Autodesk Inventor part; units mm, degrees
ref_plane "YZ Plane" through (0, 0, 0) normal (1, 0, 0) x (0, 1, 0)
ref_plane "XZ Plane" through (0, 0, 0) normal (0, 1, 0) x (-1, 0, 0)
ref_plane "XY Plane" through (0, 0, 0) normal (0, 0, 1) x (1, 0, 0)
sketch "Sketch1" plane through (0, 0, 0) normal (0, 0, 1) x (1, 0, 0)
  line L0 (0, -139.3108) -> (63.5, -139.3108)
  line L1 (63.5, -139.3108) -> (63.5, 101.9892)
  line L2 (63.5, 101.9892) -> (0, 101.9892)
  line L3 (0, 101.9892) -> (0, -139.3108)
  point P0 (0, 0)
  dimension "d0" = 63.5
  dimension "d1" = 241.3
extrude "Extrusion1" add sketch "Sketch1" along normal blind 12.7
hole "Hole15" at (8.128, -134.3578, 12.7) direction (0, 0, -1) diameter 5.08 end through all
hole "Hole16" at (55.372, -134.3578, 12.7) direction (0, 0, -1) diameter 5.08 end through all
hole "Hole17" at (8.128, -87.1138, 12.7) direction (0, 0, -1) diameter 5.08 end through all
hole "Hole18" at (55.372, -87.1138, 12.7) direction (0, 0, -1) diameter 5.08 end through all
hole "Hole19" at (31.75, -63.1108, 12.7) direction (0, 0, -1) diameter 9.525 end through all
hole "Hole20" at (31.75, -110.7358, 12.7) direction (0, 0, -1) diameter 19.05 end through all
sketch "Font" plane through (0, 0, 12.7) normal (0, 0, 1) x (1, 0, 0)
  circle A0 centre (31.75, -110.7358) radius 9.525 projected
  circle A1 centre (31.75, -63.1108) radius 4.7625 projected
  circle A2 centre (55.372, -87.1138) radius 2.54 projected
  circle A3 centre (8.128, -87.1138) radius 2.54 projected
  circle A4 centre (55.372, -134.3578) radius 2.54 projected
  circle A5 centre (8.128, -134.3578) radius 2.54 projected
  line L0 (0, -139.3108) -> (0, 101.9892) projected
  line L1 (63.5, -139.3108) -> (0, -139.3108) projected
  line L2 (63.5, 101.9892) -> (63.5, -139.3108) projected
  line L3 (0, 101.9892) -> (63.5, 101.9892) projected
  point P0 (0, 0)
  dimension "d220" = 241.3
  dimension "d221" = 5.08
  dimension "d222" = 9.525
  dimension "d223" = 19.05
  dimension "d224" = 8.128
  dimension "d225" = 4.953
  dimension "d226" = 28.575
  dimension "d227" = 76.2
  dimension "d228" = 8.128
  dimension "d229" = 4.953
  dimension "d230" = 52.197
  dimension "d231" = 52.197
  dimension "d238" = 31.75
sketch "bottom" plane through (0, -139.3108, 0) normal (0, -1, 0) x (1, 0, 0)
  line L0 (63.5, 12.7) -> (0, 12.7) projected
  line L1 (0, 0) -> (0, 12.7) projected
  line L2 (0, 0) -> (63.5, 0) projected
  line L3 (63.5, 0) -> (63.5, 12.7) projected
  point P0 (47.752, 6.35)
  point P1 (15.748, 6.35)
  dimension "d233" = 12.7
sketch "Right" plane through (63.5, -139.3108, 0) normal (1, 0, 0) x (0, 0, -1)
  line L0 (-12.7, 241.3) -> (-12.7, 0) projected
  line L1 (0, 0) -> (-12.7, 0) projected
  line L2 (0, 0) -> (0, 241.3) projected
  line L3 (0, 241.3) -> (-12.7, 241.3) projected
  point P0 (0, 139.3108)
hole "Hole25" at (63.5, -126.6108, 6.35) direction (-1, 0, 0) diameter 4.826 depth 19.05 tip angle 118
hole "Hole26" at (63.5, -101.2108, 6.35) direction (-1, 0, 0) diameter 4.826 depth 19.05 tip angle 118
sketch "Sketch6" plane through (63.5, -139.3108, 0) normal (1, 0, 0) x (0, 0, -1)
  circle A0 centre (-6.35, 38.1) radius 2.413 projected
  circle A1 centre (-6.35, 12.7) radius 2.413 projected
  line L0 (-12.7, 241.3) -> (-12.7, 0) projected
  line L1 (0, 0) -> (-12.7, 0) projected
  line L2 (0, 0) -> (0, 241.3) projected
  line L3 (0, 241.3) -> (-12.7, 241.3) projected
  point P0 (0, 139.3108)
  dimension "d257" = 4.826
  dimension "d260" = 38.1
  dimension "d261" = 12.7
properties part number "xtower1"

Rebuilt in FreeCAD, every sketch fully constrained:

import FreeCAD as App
import Part
import Sketcher
from FreeCAD import Vector
Q = App.Units.Quantity

doc = App.newDocument("Part")
body = doc.addObject("PartDesign::Body", "Body")

# Sketch on XY plane
sketch1 = doc.addObject("Sketcher::SketchObject", "Sketch")
body.addObject(sketch1)
sketch1.AttachmentSupport = (doc.XY_Plane, [""])
sketch1.MapMode = "FlatFace"
sketch1.addGeometry([
    Part.LineSegment(Vector(0, 101.9892, 0), Vector(0, -139.3108, 0)),
    Part.LineSegment(Vector(0, -139.3108, 0), Vector(63.5, -139.3108, 0)),
    Part.LineSegment(Vector(63.5, -139.3108, 0), Vector(63.5, 101.9892, 0)),
    Part.LineSegment(Vector(63.5, 101.9892, 0), Vector(0, 101.9892, 0)),
], False)
sketch1.addConstraint([
    Sketcher.Constraint("Coincident", 0, 2, 1, 1),
    Sketcher.Constraint("Coincident", 1, 2, 2, 1),
    Sketcher.Constraint("Coincident", 2, 2, 3, 1),
    Sketcher.Constraint("Coincident", 3, 2, 0, 1),
    Sketcher.Constraint("Vertical", 0),
    Sketcher.Constraint("Horizontal", 1),
    Sketcher.Constraint("Vertical", 2),
    Sketcher.Constraint("Horizontal", 3),
    Sketcher.Constraint("PointOnObject", 0, 2, -2),
    Sketcher.Constraint("DistanceX", 1, 1, 1, 2, Q("2.5 in")),
    Sketcher.Constraint("DistanceY", 0, 2, 0, 1, Q("9.5 in")),
    Sketcher.Constraint("DistanceY", 0, 2, -1, 1, Q("139.3108 mm")),
])
pad1 = doc.addObject("PartDesign::Pad", "Pad")
body.addObject(pad1)
pad1.Profile = sketch1
pad1.Length = Q("0.5 in")

# Sketch on XY plane
sketch2 = doc.addObject("Sketcher::SketchObject", "Sketch001")
body.addObject(sketch2)
sketch2.AttachmentSupport = (doc.XY_Plane, [""])
sketch2.MapMode = "FlatFace"
sketch2.AttachmentOffset = App.Placement(Vector(0, 0, 0.5 * 25.4), App.Rotation())
sketch2.addGeometry(Part.Circle(Vector(8.128, -134.3578, 0), Vector(0, 0, 1), 2.54), False)
sketch2.addConstraint([
    Sketcher.Constraint("Diameter", 0, Q("0.2 in")),
    Sketcher.Constraint("DistanceX", -1, 1, 0, 3, Q("0.32 in")),
    Sketcher.Constraint("DistanceY", 0, 3, -1, 1, Q("134.3578 mm")),
])
doc.recompute()
hole = doc.addObject("PartDesign::Hole", "Hole")
body.addObject(hole)
hole.Profile = sketch2
hole.ThreadType = "None"
hole.Diameter = Q("0.2 in")
hole.DepthType = "ThroughAll"

# Sketch on XY plane
sketch3 = doc.addObject("Sketcher::SketchObject", "Sketch002")
body.addObject(sketch3)
sketch3.AttachmentSupport = (doc.XY_Plane, [""])
sketch3.MapMode = "FlatFace"
sketch3.AttachmentOffset = App.Placement(Vector(0, 0, 0.5 * 25.4), App.Rotation())
sketch3.addGeometry(Part.Circle(Vector(55.372, -134.3578, 0), Vector(0, 0, 1), 2.54), False)
sketch3.addConstraint([
    Sketcher.Constraint("Diameter", 0, Q("0.2 in")),
    Sketcher.Constraint("DistanceX", -1, 1, 0, 3, Q("2.18 in")),
    Sketcher.Constraint("DistanceY", 0, 3, -1, 1, Q("134.3578 mm")),
])
doc.recompute()
hole2 = doc.addObject("PartDesign::Hole", "Hole001")
body.addObject(hole2)
hole2.Profile = sketch3
hole2.ThreadType = "None"
hole2.Diameter = Q("0.2 in")
hole2.DepthType = "ThroughAll"

# Sketch on XY plane
sketch4 = doc.addObject("Sketcher::SketchObject", "Sketch003")
body.addObject(sketch4)
sketch4.AttachmentSupport = (doc.XY_Plane, [""])
sketch4.MapMode = "FlatFace"
sketch4.AttachmentOffset = App.Placement(Vector(0, 0, 0.5 * 25.4), App.Rotation())
sketch4.addGeometry(Part.Circle(Vector(8.128, -87.1138, 0), Vector(0, 0, 1), 2.54), False)
sketch4.addConstraint([
    Sketcher.Constraint("Diameter", 0, Q("0.2 in")),
    Sketcher.Constraint("DistanceX", -1, 1, 0, 3, Q("0.32 in")),
    Sketcher.Constraint("DistanceY", 0, 3, -1, 1, Q("87.1138 mm")),
])
doc.recompute()
hole3 = doc.addObject("PartDesign::Hole", "Hole002")
body.addObject(hole3)
hole3.Profile = sketch4
hole3.ThreadType = "None"
hole3.Diameter = Q("0.2 in")
hole3.DepthType = "ThroughAll"

# Sketch on XY plane
sketch5 = doc.addObject("Sketcher::SketchObject", "Sketch004")
body.addObject(sketch5)
sketch5.AttachmentSupport = (doc.XY_Plane, [""])
sketch5.MapMode = "FlatFace"
sketch5.AttachmentOffset = App.Placement(Vector(0, 0, 0.5 * 25.4), App.Rotation())
sketch5.addGeometry(Part.Circle(Vector(55.372, -87.1138, 0), Vector(0, 0, 1), 2.54), False)
sketch5.addConstraint([
    Sketcher.Constraint("Diameter", 0, Q("0.2 in")),
    Sketcher.Constraint("DistanceX", -1, 1, 0, 3, Q("2.18 in")),
    Sketcher.Constraint("DistanceY", 0, 3, -1, 1, Q("87.1138 mm")),
])
doc.recompute()
hole4 = doc.addObject("PartDesign::Hole", "Hole003")
body.addObject(hole4)
hole4.Profile = sketch5
hole4.ThreadType = "None"
hole4.Diameter = Q("0.2 in")
hole4.DepthType = "ThroughAll"

# Sketch on XY plane
sketch6 = doc.addObject("Sketcher::SketchObject", "Sketch005")
body.addObject(sketch6)
sketch6.AttachmentSupport = (doc.XY_Plane, [""])
sketch6.MapMode = "FlatFace"
sketch6.AttachmentOffset = App.Placement(Vector(0, 0, 0.5 * 25.4), App.Rotation())
sketch6.addGeometry(Part.Circle(Vector(31.75, -63.1108, 0), Vector(0, 0, 1), 4.7625), False)
sketch6.addConstraint([
    Sketcher.Constraint("Diameter", 0, Q("0.375 in")),
    Sketcher.Constraint("DistanceX", -1, 1, 0, 3, Q("1.25 in")),
    Sketcher.Constraint("DistanceY", 0, 3, -1, 1, Q("63.1108 mm")),
])
doc.recompute()
hole5 = doc.addObject("PartDesign::Hole", "Hole004")
body.addObject(hole5)
hole5.Profile = sketch6
hole5.ThreadType = "None"
hole5.Diameter = Q("0.375 in")
hole5.DepthType = "ThroughAll"

# Sketch on XY plane
sketch7 = doc.addObject("Sketcher::SketchObject", "Sketch006")
body.addObject(sketch7)
sketch7.AttachmentSupport = (doc.XY_Plane, [""])
sketch7.MapMode = "FlatFace"
sketch7.AttachmentOffset = App.Placement(Vector(0, 0, 0.5 * 25.4), App.Rotation())
sketch7.addGeometry(Part.Circle(Vector(31.75, -110.7358, 0), Vector(0, 0, 1), 9.525), False)
sketch7.addConstraint([
    Sketcher.Constraint("Diameter", 0, Q("0.75 in")),
    Sketcher.Constraint("DistanceX", -1, 1, 0, 3, Q("1.25 in")),
    Sketcher.Constraint("DistanceY", 0, 3, -1, 1, Q("110.7358 mm")),
])
doc.recompute()
hole6 = doc.addObject("PartDesign::Hole", "Hole005")
body.addObject(hole6)
hole6.Profile = sketch7
hole6.ThreadType = "None"
hole6.Diameter = Q("0.75 in")
hole6.DepthType = "ThroughAll"

# Sketch on YZ plane
sketch8 = doc.addObject("Sketcher::SketchObject", "Sketch007")
body.addObject(sketch8)
sketch8.AttachmentSupport = (doc.YZ_Plane, [""])
sketch8.MapMode = "FlatFace"
sketch8.AttachmentOffset = App.Placement(Vector(0, 0, 2.5 * 25.4), App.Rotation())
sketch8.addGeometry(Part.Circle(Vector(-126.6108, 6.35, 0), Vector(0, 0, 1), 2.413), False)
sketch8.addConstraint([
    Sketcher.Constraint("Diameter", 0, Q("0.19 in")),
    Sketcher.Constraint("DistanceY", -1, 1, 0, 3, Q("0.25 in")),
    Sketcher.Constraint("DistanceX", 0, 3, -1, 1, Q("126.6108 mm")),
])
doc.recompute()
hole7 = doc.addObject("PartDesign::Hole", "Hole006")
body.addObject(hole7)
hole7.Profile = sketch8
hole7.ThreadType = "None"
hole7.Diameter = Q("0.19 in")
hole7.DepthType = "Dimension"
hole7.Depth = Q("0.75 in")
hole7.DrillPoint = "Angled"
hole7.DrillPointAngle = 118

# Sketch on YZ plane
sketch9 = doc.addObject("Sketcher::SketchObject", "Sketch008")
body.addObject(sketch9)
sketch9.AttachmentSupport = (doc.YZ_Plane, [""])
sketch9.MapMode = "FlatFace"
sketch9.AttachmentOffset = App.Placement(Vector(0, 0, 2.5 * 25.4), App.Rotation())
sketch9.addGeometry(Part.Circle(Vector(-101.2108, 6.35, 0), Vector(0, 0, 1), 2.413), False)
sketch9.addConstraint([
    Sketcher.Constraint("Diameter", 0, Q("0.19 in")),
    Sketcher.Constraint("DistanceY", -1, 1, 0, 3, Q("0.25 in")),
    Sketcher.Constraint("DistanceX", 0, 3, -1, 1, Q("101.2108 mm")),
])
doc.recompute()
hole8 = doc.addObject("PartDesign::Hole", "Hole007")
body.addObject(hole8)
hole8.Profile = sketch9
hole8.ThreadType = "None"
hole8.Diameter = Q("0.19 in")
hole8.DepthType = "Dimension"
hole8.Depth = Q("0.75 in")
hole8.DrillPoint = "Angled"
hole8.DrillPointAngle = 118

doc.recompute()
